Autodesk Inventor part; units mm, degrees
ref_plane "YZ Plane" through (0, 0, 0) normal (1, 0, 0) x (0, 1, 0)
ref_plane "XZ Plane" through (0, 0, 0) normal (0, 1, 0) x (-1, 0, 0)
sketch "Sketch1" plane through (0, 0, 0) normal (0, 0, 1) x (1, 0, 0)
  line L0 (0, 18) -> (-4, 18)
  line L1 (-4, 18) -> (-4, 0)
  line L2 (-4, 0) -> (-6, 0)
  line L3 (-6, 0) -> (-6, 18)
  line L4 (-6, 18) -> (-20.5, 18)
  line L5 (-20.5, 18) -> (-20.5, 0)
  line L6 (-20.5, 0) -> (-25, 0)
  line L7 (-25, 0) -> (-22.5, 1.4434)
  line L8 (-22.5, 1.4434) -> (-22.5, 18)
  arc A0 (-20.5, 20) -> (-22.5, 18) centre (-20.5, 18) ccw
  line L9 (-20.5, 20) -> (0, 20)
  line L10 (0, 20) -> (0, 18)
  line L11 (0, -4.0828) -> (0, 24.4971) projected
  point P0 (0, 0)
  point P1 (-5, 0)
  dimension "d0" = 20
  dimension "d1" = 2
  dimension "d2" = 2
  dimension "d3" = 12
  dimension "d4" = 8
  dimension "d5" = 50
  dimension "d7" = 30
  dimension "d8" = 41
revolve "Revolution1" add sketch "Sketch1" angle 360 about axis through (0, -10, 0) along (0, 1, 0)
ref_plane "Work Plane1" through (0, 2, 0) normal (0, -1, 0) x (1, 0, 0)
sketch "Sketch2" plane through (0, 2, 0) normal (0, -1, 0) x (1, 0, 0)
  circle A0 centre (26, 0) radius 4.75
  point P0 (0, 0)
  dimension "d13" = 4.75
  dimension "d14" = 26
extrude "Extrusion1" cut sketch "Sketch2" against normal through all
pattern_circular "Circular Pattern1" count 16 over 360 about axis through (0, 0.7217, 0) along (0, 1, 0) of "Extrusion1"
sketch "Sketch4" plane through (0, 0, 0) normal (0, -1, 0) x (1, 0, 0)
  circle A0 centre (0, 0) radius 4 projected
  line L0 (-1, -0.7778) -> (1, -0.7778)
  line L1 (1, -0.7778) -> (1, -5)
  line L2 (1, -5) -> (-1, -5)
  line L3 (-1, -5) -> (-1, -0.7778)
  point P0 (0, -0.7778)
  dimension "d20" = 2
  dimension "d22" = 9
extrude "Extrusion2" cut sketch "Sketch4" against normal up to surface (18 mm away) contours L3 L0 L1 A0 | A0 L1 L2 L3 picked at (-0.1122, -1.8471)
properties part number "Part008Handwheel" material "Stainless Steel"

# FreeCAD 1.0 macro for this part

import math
import FreeCAD as App
import Part
import Sketcher
from FreeCAD import Vector
Q = App.Units.Quantity

doc = App.newDocument("Part")
body = doc.addObject("PartDesign::Body", "Body")

# Sketch on XY plane
sketch1 = doc.addObject("Sketcher::SketchObject", "Sketch")
body.addObject(sketch1)
sketch1.AttachmentSupport = (doc.XY_Plane, [""])
sketch1.MapMode = "FlatFace"
sketch1.addGeometry([
    Part.LineSegment(Vector(-4, 18, 0), Vector(0, 18, 0)),  # 0
    Part.LineSegment(Vector(0, 18, 0), Vector(0, 20, 0)),  # 1
    Part.LineSegment(Vector(0, 20, 0), Vector(-20.5, 20, 0)),  # 2
    Part.ArcOfCircle(Part.Circle(Vector(-20.5, 18, 0), Vector(0, 0, 1), 2), math.radians(90), math.radians(180)),  # 3
    Part.LineSegment(Vector(-22.5, 18, 0), Vector(-22.5, 1.4434, 0)),  # 4
    Part.LineSegment(Vector(-22.5, 1.4434, 0), Vector(-25, 0, 0)),  # 5
    Part.LineSegment(Vector(-25, 0, 0), Vector(-20.5, 0, 0)),  # 6
    Part.LineSegment(Vector(-20.5, 0, 0), Vector(-20.5, 18, 0)),  # 7
    Part.LineSegment(Vector(-20.5, 18, 0), Vector(-6, 18, 0)),  # 8
    Part.LineSegment(Vector(-6, 18, 0), Vector(-6, 0, 0)),  # 9
    Part.LineSegment(Vector(-6, 0, 0), Vector(-4, 0, 0)),  # 10
    Part.LineSegment(Vector(-4, 0, 0), Vector(-4, 18, 0)),  # 11
], False)
sketch1.addConstraint([
    Sketcher.Constraint("Coincident", 0, 2, 1, 1),
    Sketcher.Constraint("Coincident", 1, 2, 2, 1),
    Sketcher.Constraint("Tangent", 2, 2, 3, 1),
    Sketcher.Constraint("Tangent", 3, 2, 4, 1),
    Sketcher.Constraint("Coincident", 4, 2, 5, 1),
    Sketcher.Constraint("Coincident", 5, 2, 6, 1),
    Sketcher.Constraint("Coincident", 6, 2, 7, 1),
    Sketcher.Constraint("Coincident", 7, 2, 8, 1),
    Sketcher.Constraint("Coincident", 8, 2, 9, 1),
    Sketcher.Constraint("Coincident", 9, 2, 10, 1),
    Sketcher.Constraint("Coincident", 10, 2, 11, 1),
    Sketcher.Constraint("Coincident", 11, 2, 0, 1),
    Sketcher.Constraint("Horizontal", 0),
    Sketcher.Constraint("Vertical", 1),
    Sketcher.Constraint("Horizontal", 2),
    Sketcher.Constraint("Vertical", 4),
    Sketcher.Constraint("Horizontal", 6),
    Sketcher.Constraint("Vertical", 7),
    Sketcher.Constraint("Horizontal", 8),
    Sketcher.Constraint("Vertical", 9),
    Sketcher.Constraint("Horizontal", 10),
    Sketcher.Constraint("Vertical", 11),
    Sketcher.Constraint("Coincident", 7, 2, 3, 3),
    Sketcher.Constraint("PointOnObject", 0, 2, -2),
    Sketcher.Constraint("PointOnObject", 5, 2, -1),
    Sketcher.Constraint("PointOnObject", 9, 2, -1),
    Sketcher.Constraint("Horizontal", 3, 3, 0, 2),
    Sketcher.Constraint("Equal", 10, 1),
    Sketcher.Constraint("Radius", 3, Q("2 mm")),
    Sketcher.Constraint("DistanceY", -1, 1, 1, 2, Q("20 mm")),
    Sketcher.Constraint("DistanceX", 0, 1, 0, 2, Q("4 mm")),
    Sketcher.Constraint("Angle", 5, Q("-149.9996 deg")),
    Sketcher.Constraint("DistanceX", 2, 2, 2, 1, Q("20.5 mm")),
    Sketcher.Constraint("DistanceX", 6, 1, 6, 2, Q("4.5 mm")),
])
revolution = doc.addObject("PartDesign::Revolution", "Revolution")
body.addObject(revolution)
revolution.Profile = sketch1
revolution.ReferenceAxis = (sketch1, ["V_Axis"])
revolution.Angle = 360

# Sketch on XZ plane
sketch2 = doc.addObject("Sketcher::SketchObject", "Sketch001")
body.addObject(sketch2)
sketch2.AttachmentSupport = (doc.XZ_Plane, [""])
sketch2.MapMode = "FlatFace"
sketch2.AttachmentOffset = App.Placement(Vector(0, 0, -2), App.Rotation())
sketch2.addGeometry(Part.Circle(Vector(26, 0, 0), Vector(0, 0, 1), 4.75), False)
sketch2.addConstraint([
    Sketcher.Constraint("PointOnObject", 0, 3, -1),
    Sketcher.Constraint("Diameter", 0, Q("9.5 mm")),
    Sketcher.Constraint("DistanceX", -1, 1, 0, 3, Q("26 mm")),
])
pocket1 = doc.addObject("PartDesign::Pocket", "Pocket")
body.addObject(pocket1)
pocket1.Profile = sketch2
pocket1.Type = "ThroughAll"
doc.recompute()

polarpattern = doc.addObject("PartDesign::PolarPattern", "PolarPattern")
body.addObject(polarpattern)
polarpattern.Originals = [pocket1]
polarpattern.Axis = (doc.Y_Axis, [""])
polarpattern.Angle = 360
polarpattern.Occurrences = 16
body.Tip = polarpattern

# Sketch on XZ plane
sketch3 = doc.addObject("Sketcher::SketchObject", "Sketch002")
body.addObject(sketch3)
sketch3.AttachmentSupport = (doc.XZ_Plane, [""])
sketch3.MapMode = "FlatFace"
sketch3.addGeometry([
    Part.LineSegment(Vector(-1, -0.7778, 0), Vector(-1, -5, 0)),
    Part.LineSegment(Vector(-1, -5, 0), Vector(1, -5, 0)),
    Part.LineSegment(Vector(1, -5, 0), Vector(1, -0.7778, 0)),
    Part.LineSegment(Vector(1, -0.7778, 0), Vector(-1, -0.7778, 0)),
], False)
sketch3.addConstraint([
    Sketcher.Constraint("Coincident", 0, 2, 1, 1),
    Sketcher.Constraint("Coincident", 1, 2, 2, 1),
    Sketcher.Constraint("Coincident", 2, 2, 3, 1),
    Sketcher.Constraint("Coincident", 3, 2, 0, 1),
    Sketcher.Constraint("Vertical", 0),
    Sketcher.Constraint("Horizontal", 1),
    Sketcher.Constraint("Vertical", 2),
    Sketcher.Constraint("Horizontal", 3),
    Sketcher.Constraint("DistanceX", 1, 1, 1, 2, Q("2 mm")),
    Sketcher.Constraint("DistanceX", 0, 2, -1, 1, Q("1 mm")),
    Sketcher.Constraint("DistanceY", 0, 2, -1, 1, Q("5 mm")),
    Sketcher.Constraint("DistanceY", 0, 2, 0, 1, Q("4.2222 mm")),
])
pocket2 = doc.addObject("PartDesign::Pocket", "Pocket001")
body.addObject(pocket2)
pocket2.Profile = sketch3
pocket2.Length = 18

doc.recompute()
